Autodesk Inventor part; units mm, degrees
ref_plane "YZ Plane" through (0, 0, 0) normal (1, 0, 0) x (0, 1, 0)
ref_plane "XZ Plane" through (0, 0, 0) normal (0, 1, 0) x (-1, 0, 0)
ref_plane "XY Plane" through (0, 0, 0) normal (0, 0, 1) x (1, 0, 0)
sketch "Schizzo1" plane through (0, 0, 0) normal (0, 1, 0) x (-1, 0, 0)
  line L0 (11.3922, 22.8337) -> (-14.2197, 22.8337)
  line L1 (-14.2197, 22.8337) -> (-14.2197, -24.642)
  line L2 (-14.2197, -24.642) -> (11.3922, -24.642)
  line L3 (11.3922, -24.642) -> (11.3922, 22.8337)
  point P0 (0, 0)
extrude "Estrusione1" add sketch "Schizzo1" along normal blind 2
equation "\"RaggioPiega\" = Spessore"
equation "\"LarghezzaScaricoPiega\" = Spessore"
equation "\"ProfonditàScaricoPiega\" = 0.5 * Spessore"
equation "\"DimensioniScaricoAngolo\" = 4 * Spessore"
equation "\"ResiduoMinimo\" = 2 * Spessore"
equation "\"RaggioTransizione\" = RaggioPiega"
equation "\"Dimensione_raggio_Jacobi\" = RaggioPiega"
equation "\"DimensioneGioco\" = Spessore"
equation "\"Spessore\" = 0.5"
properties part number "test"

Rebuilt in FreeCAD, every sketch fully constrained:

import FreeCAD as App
import Part
import Sketcher
from FreeCAD import Vector
Q = App.Units.Quantity

doc = App.newDocument("Part")
body = doc.addObject("PartDesign::Body", "Body")

# Sketch on XZ plane
sketch1 = body.newObject("Sketcher::SketchObject", "Sketch")
sketch1.AttachmentSupport = (doc.getObject("XZ_Plane"), [""])
sketch1.MapMode = "FlatFace"
sketch1.addGeometry([
    Part.LineSegment(Vector(-11, -25, 0), Vector(-11, 23, 0)),
    Part.LineSegment(Vector(-11, 23, 0), Vector(14, 23, 0)),
    Part.LineSegment(Vector(14, 23, 0), Vector(14, -25, 0)),
    Part.LineSegment(Vector(14, -25, 0), Vector(-11, -25, 0)),
], False)
sketch1.addConstraint([
    Sketcher.Constraint("Coincident", 0, 2, 1, 1),
    Sketcher.Constraint("Coincident", 1, 2, 2, 1),
    Sketcher.Constraint("Coincident", 2, 2, 3, 1),
    Sketcher.Constraint("Coincident", 3, 2, 0, 1),
    Sketcher.Constraint("Vertical", 0),
    Sketcher.Constraint("Horizontal", 1),
    Sketcher.Constraint("Vertical", 2),
    Sketcher.Constraint("Horizontal", 3),
    Sketcher.Constraint("DistanceX", 1, 1, 1, 2, Q("25.612 mm")),
    Sketcher.Constraint("DistanceY", 0, 1, 0, 2, Q("47.4757 mm")),
    Sketcher.Constraint("DistanceY", 2, 2, -1, 1, Q("24.642 mm")),
    Sketcher.Constraint("DistanceX", 0, 2, -1, 1, Q("11.3922 mm")),
])
pad1 = body.newObject("PartDesign::Pad", "Pad")
pad1.Profile = sketch1
pad1.Length = 2
pad1.Reversed = True

doc.recompute()
